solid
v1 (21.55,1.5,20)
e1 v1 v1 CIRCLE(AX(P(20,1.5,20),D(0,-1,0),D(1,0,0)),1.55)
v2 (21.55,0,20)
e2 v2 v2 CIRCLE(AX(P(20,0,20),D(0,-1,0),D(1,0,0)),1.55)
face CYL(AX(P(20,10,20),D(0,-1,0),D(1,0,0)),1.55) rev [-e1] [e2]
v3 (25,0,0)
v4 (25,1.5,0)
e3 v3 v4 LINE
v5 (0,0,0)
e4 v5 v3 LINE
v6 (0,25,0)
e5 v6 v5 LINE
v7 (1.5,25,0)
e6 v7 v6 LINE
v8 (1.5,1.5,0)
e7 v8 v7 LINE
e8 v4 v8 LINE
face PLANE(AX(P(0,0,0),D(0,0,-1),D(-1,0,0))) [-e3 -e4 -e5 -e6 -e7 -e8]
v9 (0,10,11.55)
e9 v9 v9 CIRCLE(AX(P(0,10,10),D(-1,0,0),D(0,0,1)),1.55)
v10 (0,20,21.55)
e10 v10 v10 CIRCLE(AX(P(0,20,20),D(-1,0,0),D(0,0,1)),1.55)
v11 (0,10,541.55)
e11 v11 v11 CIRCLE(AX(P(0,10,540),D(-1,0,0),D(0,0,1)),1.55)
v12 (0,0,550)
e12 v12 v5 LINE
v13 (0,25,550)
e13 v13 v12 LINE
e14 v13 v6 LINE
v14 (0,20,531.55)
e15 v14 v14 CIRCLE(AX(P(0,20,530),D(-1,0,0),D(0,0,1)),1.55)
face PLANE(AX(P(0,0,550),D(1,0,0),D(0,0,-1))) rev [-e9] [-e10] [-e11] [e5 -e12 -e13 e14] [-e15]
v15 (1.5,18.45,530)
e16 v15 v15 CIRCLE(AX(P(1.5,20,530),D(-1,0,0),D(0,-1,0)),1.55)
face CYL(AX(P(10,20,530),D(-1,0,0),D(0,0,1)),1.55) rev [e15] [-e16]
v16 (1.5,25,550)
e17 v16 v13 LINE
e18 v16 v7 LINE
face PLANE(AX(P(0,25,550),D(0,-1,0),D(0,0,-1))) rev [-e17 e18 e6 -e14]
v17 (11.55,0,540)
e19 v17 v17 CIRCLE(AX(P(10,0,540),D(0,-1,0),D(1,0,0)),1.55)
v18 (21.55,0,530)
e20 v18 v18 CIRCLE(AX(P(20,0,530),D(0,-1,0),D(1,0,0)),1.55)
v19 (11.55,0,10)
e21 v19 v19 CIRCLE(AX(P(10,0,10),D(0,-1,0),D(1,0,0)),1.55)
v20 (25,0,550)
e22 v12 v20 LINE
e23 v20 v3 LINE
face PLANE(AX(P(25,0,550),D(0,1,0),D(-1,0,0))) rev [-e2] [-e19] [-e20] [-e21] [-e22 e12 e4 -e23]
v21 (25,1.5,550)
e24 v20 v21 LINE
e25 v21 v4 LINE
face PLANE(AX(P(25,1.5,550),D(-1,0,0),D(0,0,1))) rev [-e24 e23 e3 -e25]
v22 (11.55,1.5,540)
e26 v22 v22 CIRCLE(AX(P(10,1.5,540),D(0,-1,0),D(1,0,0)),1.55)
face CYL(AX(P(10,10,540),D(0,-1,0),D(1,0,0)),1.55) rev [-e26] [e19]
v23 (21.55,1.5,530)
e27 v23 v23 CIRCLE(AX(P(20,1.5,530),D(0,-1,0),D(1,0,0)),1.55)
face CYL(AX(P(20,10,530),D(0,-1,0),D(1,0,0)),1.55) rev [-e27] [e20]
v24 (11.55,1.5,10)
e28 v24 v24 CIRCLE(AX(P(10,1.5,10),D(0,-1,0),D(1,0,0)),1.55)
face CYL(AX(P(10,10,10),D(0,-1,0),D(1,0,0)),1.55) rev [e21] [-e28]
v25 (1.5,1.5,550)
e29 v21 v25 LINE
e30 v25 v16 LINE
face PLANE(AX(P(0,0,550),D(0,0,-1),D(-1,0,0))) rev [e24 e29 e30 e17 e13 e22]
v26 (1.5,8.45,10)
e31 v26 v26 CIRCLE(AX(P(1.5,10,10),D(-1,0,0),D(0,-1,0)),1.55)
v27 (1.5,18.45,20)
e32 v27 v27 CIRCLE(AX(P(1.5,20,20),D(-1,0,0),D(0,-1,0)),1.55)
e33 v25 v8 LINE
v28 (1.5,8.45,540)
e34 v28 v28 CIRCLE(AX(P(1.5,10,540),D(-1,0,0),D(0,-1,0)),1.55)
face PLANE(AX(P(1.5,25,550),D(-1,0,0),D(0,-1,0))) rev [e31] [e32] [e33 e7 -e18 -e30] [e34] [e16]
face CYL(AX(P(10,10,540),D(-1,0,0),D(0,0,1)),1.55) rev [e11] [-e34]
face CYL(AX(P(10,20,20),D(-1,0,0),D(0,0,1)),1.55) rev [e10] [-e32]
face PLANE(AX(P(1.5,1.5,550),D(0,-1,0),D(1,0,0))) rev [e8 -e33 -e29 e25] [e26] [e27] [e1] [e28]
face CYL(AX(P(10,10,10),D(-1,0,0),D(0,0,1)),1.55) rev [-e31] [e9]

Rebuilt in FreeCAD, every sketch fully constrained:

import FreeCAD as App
import Part
import Sketcher
from FreeCAD import Vector

doc = App.newDocument("Part")
body = doc.addObject("PartDesign::Body", "Body")

# Sketch on XY plane
sketch1 = body.newObject("Sketcher::SketchObject", "Sketch")
sketch1.AttachmentSupport = (doc.getObject("XY_Plane"), [""])
sketch1.MapMode = "FlatFace"
sketch1.addGeometry(Part.LineSegment(Vector(0, 25, 0), Vector(0, 0, 0)), False)
sketch1.addGeometry(Part.LineSegment(Vector(0, 0, 0), Vector(25, 0, 0)), False)
sketch1.addGeometry(Part.LineSegment(Vector(25, 0, 0), Vector(25, 1.5, 0)), False)
sketch1.addGeometry(Part.LineSegment(Vector(25, 1.5, 0), Vector(1.5, 1.5, 0)), False)
sketch1.addGeometry(Part.LineSegment(Vector(1.5, 1.5, 0), Vector(1.5, 25, 0)), False)
sketch1.addGeometry(Part.LineSegment(Vector(1.5, 25, 0), Vector(0, 25, 0)), False)
sketch1.addConstraint(Sketcher.Constraint("Coincident", 0, 2, 1, 1))
sketch1.addConstraint(Sketcher.Constraint("Coincident", 1, 2, 2, 1))
sketch1.addConstraint(Sketcher.Constraint("Coincident", 2, 2, 3, 1))
sketch1.addConstraint(Sketcher.Constraint("Coincident", 3, 2, 4, 1))
sketch1.addConstraint(Sketcher.Constraint("Coincident", 4, 2, 5, 1))
sketch1.addConstraint(Sketcher.Constraint("Coincident", 5, 2, 0, 1))
sketch1.addConstraint(Sketcher.Constraint("Vertical", 0))
sketch1.addConstraint(Sketcher.Constraint("Horizontal", 1))
sketch1.addConstraint(Sketcher.Constraint("Vertical", 2))
sketch1.addConstraint(Sketcher.Constraint("Horizontal", 3))
sketch1.addConstraint(Sketcher.Constraint("Vertical", 4))
sketch1.addConstraint(Sketcher.Constraint("Horizontal", 5))
sketch1.addConstraint(Sketcher.Constraint("Coincident", 0, 2, -1, 1))
sketch1.addConstraint(Sketcher.Constraint("Equal", 1, 0))
sketch1.addConstraint(Sketcher.Constraint("Equal", 5, 2))
sketch1.addConstraint(Sketcher.Constraint("DistanceX", 1, 1, 1, 2, 25.0))
sketch1.addConstraint(Sketcher.Constraint("DistanceX", 3, 2, 3, 1, 23.5))
pad1 = body.newObject("PartDesign::Pad", "Pad")
pad1.Profile = sketch1
pad1.Length = 550

# Sketch on YZ plane
sketch2 = body.newObject("Sketcher::SketchObject", "Sketch001")
sketch2.AttachmentSupport = (doc.getObject("YZ_Plane"), [""])
sketch2.MapMode = "FlatFace"
sketch2.addGeometry(Part.Circle(Vector(10, 10, 0), Vector(0, 0, 1), 1.6), False)
sketch2.addGeometry(Part.Circle(Vector(20, 20, 0), Vector(0, 0, 1), 1.6), False)
sketch2.addGeometry(Part.Circle(Vector(20, 530, 0), Vector(0, 0, 1), 1.6), False)
sketch2.addGeometry(Part.Circle(Vector(10, 540, 0), Vector(0, 0, 1), 1.6), False)
sketch2.addConstraint(Sketcher.Constraint("Equal", 0, 1))
sketch2.addConstraint(Sketcher.Constraint("Equal", 1, 2))
sketch2.addConstraint(Sketcher.Constraint("Equal", 2, 3))
sketch2.addConstraint(Sketcher.Constraint("Vertical", 1, 3, 2, 3))
sketch2.addConstraint(Sketcher.Constraint("Vertical", 0, 3, 3, 3))
sketch2.addConstraint(Sketcher.Constraint("Diameter", 0, 3.1))
sketch2.addConstraint(Sketcher.Constraint("DistanceX", -1, 1, 0, 3, 10.0))
sketch2.addConstraint(Sketcher.Constraint("DistanceY", -1, 1, 0, 3, 10.0))
sketch2.addConstraint(Sketcher.Constraint("DistanceX", -1, 1, 1, 3, 20.0))
sketch2.addConstraint(Sketcher.Constraint("DistanceY", -1, 1, 1, 3, 20.0))
sketch2.addConstraint(Sketcher.Constraint("DistanceY", -1, 1, 2, 3, 530.0))
sketch2.addConstraint(Sketcher.Constraint("DistanceY", -1, 1, 3, 3, 540.0))
pocket1 = body.newObject("PartDesign::Pocket", "Pocket")
pocket1.Profile = sketch2
pocket1.Length = 10
pocket1.Reversed = True

# Sketch on XZ plane
sketch3 = body.newObject("Sketcher::SketchObject", "Sketch002")
sketch3.AttachmentSupport = (doc.getObject("XZ_Plane"), [""])
sketch3.MapMode = "FlatFace"
sketch3.addGeometry(Part.Circle(Vector(10, 540, 0), Vector(0, 0, 1), 1.6), False)
sketch3.addGeometry(Part.Circle(Vector(20, 530, 0), Vector(0, 0, 1), 1.6), False)
sketch3.addGeometry(Part.Circle(Vector(20, 20, 0), Vector(0, 0, 1), 1.6), False)
sketch3.addGeometry(Part.Circle(Vector(10, 10, 0), Vector(0, 0, 1), 1.6), False)
sketch3.addConstraint(Sketcher.Constraint("Equal", 0, 1))
sketch3.addConstraint(Sketcher.Constraint("Equal", 1, 2))
sketch3.addConstraint(Sketcher.Constraint("Equal", 2, 3))
sketch3.addConstraint(Sketcher.Constraint("Vertical", 1, 3, 2, 3))
sketch3.addConstraint(Sketcher.Constraint("Vertical", 0, 3, 3, 3))
sketch3.addConstraint(Sketcher.Constraint("Diameter", 0, 3.1))
sketch3.addConstraint(Sketcher.Constraint("DistanceX", -1, 1, 0, 3, 10.0))
sketch3.addConstraint(Sketcher.Constraint("DistanceY", -1, 1, 0, 3, 540.0))
sketch3.addConstraint(Sketcher.Constraint("DistanceX", -1, 1, 1, 3, 20.0))
sketch3.addConstraint(Sketcher.Constraint("DistanceY", -1, 1, 1, 3, 530.0))
sketch3.addConstraint(Sketcher.Constraint("DistanceY", -1, 1, 2, 3, 20.0))
sketch3.addConstraint(Sketcher.Constraint("DistanceY", -1, 1, 3, 3, 10.0))
pocket2 = body.newObject("PartDesign::Pocket", "Pocket001")
pocket2.Profile = sketch3
pocket2.Length = 10

doc.recompute()
